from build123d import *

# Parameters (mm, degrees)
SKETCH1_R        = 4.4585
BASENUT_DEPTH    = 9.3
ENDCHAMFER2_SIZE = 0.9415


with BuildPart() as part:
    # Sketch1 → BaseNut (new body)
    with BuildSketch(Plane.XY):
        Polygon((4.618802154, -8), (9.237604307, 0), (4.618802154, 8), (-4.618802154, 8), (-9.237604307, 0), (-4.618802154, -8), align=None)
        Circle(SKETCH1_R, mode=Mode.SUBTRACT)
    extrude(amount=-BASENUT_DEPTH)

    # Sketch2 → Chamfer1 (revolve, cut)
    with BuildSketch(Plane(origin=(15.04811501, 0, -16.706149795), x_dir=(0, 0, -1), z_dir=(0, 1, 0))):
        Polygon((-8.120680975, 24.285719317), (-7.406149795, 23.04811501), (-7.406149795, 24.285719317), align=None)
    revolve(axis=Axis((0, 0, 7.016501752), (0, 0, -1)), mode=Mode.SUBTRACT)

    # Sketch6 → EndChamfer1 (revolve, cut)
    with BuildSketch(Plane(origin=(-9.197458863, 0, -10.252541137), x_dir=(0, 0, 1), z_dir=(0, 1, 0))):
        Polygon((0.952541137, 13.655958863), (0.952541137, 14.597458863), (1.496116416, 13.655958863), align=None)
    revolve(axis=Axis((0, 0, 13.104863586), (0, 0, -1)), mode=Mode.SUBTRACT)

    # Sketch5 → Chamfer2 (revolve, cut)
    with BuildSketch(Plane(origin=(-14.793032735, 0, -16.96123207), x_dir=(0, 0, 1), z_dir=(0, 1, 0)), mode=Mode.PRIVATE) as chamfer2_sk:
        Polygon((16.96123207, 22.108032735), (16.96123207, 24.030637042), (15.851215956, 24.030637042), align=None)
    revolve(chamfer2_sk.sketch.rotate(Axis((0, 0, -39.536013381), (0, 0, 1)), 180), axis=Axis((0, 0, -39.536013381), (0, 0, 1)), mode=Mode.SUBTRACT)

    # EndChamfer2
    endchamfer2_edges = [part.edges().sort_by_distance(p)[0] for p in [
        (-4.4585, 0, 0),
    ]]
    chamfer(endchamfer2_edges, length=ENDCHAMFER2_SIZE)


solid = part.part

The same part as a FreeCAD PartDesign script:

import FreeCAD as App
import Part
import Sketcher

V = App.Vector
Q = App.Units.Quantity


def edges_at(feature, points):
    """Names of the edges that pass closest to the given points."""
    edges = feature.Shape.Edges
    near = lambda p: min(range(len(edges)), key=lambda i: edges[i].distToShape(Part.Vertex(*p))[0])
    return sorted({f"Edge{near(p) + 1}" for p in points})


def add_polygon(sketch, points):
    """Adds a closed chain of lines whose ends are joined by coincident constraints."""
    first, n = sketch.GeometryCount, len(points)
    for a, b in zip(points, points[1:] + points[:1]):
        sketch.addGeometry(Part.LineSegment(App.Vector(*a, 0), App.Vector(*b, 0)), False)
    for i in range(n):
        sketch.addConstraint(Sketcher.Constraint("Coincident", first + i, 2, first + (i + 1) % n, 1))

doc = App.newDocument("Part")
params = doc.addObject("Spreadsheet::Sheet", "Params")
for row, (alias, value) in enumerate([
    ("pad1_length", "9.3 mm"),
    ("groove_angle", "360 deg"),
    ("groove2_angle", "360 deg"),
    ("groove3_angle", "360 deg"),
    ("chamfer_size", "0.9415 mm"),
], start=1):
    params.set(f"A{row}", alias)
    params.set(f"B{row}", "=" + value)
    params.setAlias(f"B{row}", alias)

body = doc.addObject("PartDesign::Body", "Body")

# Sketch on XY plane
sketch1 = body.newObject("Sketcher::SketchObject", "Sketch")
sketch1.AttachmentSupport = (doc.getObject("XY_Plane"), [""])
sketch1.MapMode = "FlatFace"
add_polygon(sketch1, [(4.618802, -8), (9.237604, 0), (4.618802, 8), (-4.618802, 8), (-9.237604, 0), (-4.618802, -8)])  # lines 0-5
sketch1.addGeometry(Part.Circle(V(0, 0, 0), V(0, 0, 1), 4.4585), False)  # 6
sketch1.addConstraint([
    Sketcher.Constraint("Horizontal", 2),
    Sketcher.Constraint("Horizontal", 5),
    Sketcher.Constraint("Coincident", 6, 3, -1, 1),
    Sketcher.Constraint("Symmetric", 0, 2, 3, 2, -1, 1),
    Sketcher.Constraint("Symmetric", 1, 2, 4, 2, -1, 1),
    Sketcher.Constraint("PointOnObject", 0, 2, -1),
    Sketcher.Constraint("Parallel", 0, 3),
    Sketcher.Constraint("Vertical", 2, 2, 4, 2),
    Sketcher.Constraint("Angle", 0, Q("60 deg")),
    Sketcher.Constraint("Diameter", 6, Q("8.917 mm")),
    Sketcher.Constraint("DistanceY", -1, 1, 1, 2, Q("8 mm")),
    Sketcher.Constraint("DistanceX", 2, 2, 2, 1, Q("9.237604 mm")),
])
pad1 = body.newObject("PartDesign::Pad", "Pad")
pad1.Profile = sketch1
pad1.setExpression("Length", "Params.pad1_length")
pad1.Reversed = True

# Sketch on XZ plane
sketch2 = body.newObject("Sketcher::SketchObject", "Sketch001")
sketch2.AttachmentSupport = (doc.getObject("XZ_Plane"), [""])
sketch2.MapMode = "FlatFace"
add_polygon(sketch2, [(-9.237604, -8.585469), (-8, -9.3), (-9.237604, -9.3)])  # lines 0-2
sketch2.addConstraint([
    Sketcher.Constraint("Horizontal", 1),
    Sketcher.Constraint("Vertical", 2),
    Sketcher.Constraint("Angle", 0, Q("-30 deg")),
    Sketcher.Constraint("DistanceX", 0, 2, -1, 1, Q("8 mm")),
    Sketcher.Constraint("DistanceY", 0, 2, -1, 1, Q("9.3 mm")),
    Sketcher.Constraint("DistanceY", 2, 1, 2, 2, Q("0.714531 mm")),
])
groove = body.newObject("PartDesign::Groove", "Groove")
groove.Profile = sketch2
groove.ReferenceAxis = (sketch2, ["V_Axis"])
groove.setExpression("Angle", "Params.groove_angle")

# Sketch on XZ plane
sketch3 = body.newObject("Sketcher::SketchObject", "Sketch002")
sketch3.AttachmentSupport = (doc.getObject("XZ_Plane"), [""])
sketch3.MapMode = "FlatFace"
add_polygon(sketch3, [(5.4, -9.3), (4.4585, -9.3), (4.4585, -8.756425)])  # lines 0-2
sketch3.addConstraint([
    Sketcher.Constraint("Horizontal", 0),
    Sketcher.Constraint("Vertical", 1),
    Sketcher.Constraint("Angle", 2, Q("-30 deg")),
    Sketcher.Constraint("DistanceY", 0, 2, -1, 1, Q("9.3 mm")),
    Sketcher.Constraint("DistanceX", -1, 1, 2, 2, Q("5.4 mm")),
    Sketcher.Constraint("DistanceX", 0, 2, 0, 1, Q("0.9415 mm")),
])
groove2 = body.newObject("PartDesign::Groove", "Groove001")
groove2.Profile = sketch3
groove2.ReferenceAxis = (sketch3, ["V_Axis"])
groove2.setExpression("Angle", "Params.groove2_angle")

# Sketch on XZ plane
sketch4 = body.newObject("Sketcher::SketchObject", "Sketch003")
sketch4.AttachmentSupport = (doc.getObject("XZ_Plane"), [""])
sketch4.MapMode = "FlatFace"
add_polygon(sketch4, [(7.315, 0), (9.237604, 0), (9.237604, -1.110016)])  # lines 0-2
sketch4.addConstraint([
    Sketcher.Constraint("Horizontal", 0),
    Sketcher.Constraint("Vertical", 1),
    Sketcher.Constraint("PointOnObject", 0, 2, -1),
    Sketcher.Constraint("Angle", 2, Q("150 deg")),
    Sketcher.Constraint("DistanceX", -1, 1, 2, 2, Q("7.315 mm")),
    Sketcher.Constraint("DistanceX", 0, 1, 0, 2, Q("1.922604 mm")),
])
groove3 = body.newObject("PartDesign::Groove", "Groove002")
groove3.Profile = sketch4
groove3.ReferenceAxis = (sketch4, ["V_Axis"])
groove3.setExpression("Angle", "Params.groove3_angle")
doc.recompute()

chamfer = body.newObject("PartDesign::Chamfer", "Chamfer")
chamfer.Base = (groove3, edges_at(groove3, [(-4.458, 0, 0)]))
chamfer.setExpression("Size", "Params.chamfer_size")

doc.recompute()
